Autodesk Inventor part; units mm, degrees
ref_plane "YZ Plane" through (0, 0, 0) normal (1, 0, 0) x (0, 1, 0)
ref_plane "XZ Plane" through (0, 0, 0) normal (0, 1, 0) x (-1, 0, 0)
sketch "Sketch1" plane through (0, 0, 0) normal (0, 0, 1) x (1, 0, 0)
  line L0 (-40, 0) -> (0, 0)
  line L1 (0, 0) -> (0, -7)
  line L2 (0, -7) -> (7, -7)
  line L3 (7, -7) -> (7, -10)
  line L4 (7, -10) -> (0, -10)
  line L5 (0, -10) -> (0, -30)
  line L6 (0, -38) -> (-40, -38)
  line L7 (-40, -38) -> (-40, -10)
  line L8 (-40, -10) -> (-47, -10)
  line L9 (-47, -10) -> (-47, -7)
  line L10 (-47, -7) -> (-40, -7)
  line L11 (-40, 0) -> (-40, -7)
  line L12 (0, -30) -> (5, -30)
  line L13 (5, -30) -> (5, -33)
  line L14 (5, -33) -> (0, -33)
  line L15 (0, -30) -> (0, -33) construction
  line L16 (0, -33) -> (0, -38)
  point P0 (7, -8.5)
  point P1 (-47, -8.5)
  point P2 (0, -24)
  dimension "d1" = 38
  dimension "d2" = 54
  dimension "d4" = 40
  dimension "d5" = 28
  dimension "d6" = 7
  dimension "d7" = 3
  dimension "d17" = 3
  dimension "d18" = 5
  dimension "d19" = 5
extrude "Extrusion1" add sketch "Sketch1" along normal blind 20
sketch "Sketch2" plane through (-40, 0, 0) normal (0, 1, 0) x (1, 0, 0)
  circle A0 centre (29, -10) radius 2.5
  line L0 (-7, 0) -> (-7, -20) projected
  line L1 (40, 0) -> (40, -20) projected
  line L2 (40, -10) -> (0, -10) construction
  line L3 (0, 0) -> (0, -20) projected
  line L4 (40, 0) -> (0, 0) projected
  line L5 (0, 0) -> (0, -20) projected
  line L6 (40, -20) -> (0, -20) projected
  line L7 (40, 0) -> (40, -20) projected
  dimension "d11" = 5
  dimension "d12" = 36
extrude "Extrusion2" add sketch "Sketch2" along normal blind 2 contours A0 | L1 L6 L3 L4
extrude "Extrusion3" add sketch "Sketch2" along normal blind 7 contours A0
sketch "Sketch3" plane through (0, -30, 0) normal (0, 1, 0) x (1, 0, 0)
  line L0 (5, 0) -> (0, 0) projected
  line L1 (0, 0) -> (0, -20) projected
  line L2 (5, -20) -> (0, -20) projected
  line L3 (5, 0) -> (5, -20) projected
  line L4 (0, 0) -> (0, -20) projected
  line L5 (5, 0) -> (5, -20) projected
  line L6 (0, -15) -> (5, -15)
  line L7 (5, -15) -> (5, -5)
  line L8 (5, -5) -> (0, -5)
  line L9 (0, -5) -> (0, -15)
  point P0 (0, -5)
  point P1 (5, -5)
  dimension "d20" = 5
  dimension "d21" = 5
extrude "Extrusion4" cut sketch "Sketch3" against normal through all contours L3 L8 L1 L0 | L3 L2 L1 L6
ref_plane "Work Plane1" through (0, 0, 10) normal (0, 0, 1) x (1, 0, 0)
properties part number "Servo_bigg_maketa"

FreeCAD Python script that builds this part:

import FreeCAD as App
import Part
import Sketcher

V = App.Vector
Q = App.Units.Quantity


def add_polygon(sketch, points):
    """Adds a closed chain of lines whose ends are joined by coincident constraints."""
    first, n = sketch.GeometryCount, len(points)
    for a, b in zip(points, points[1:] + points[:1]):
        sketch.addGeometry(Part.LineSegment(App.Vector(*a, 0), App.Vector(*b, 0)), False)
    for i in range(n):
        sketch.addConstraint(Sketcher.Constraint("Coincident", first + i, 2, first + (i + 1) % n, 1))

doc = App.newDocument("Part")
body = doc.addObject("PartDesign::Body", "Body")

# Sketch on XY plane
sketch1 = body.newObject("Sketcher::SketchObject", "Sketch")
sketch1.AttachmentSupport = (doc.getObject("XY_Plane"), [""])
sketch1.MapMode = "FlatFace"
add_polygon(sketch1, [(0, 0), (-40, 0), (-40, -7), (-47, -7), (-47, -10), (-40, -10), (-40, -38), (0, -38), (0, -33), (5, -33), (5, -30), (0, -30), (0, -10), (7, -10), (7, -7), (0, -7)])  # lines 0-15
sketch1.addConstraint(Sketcher.Constraint("Horizontal", 0))
sketch1.addConstraint(Sketcher.Constraint("Vertical", 1))
sketch1.addConstraint(Sketcher.Constraint("Horizontal", 2))
sketch1.addConstraint(Sketcher.Constraint("Vertical", 3))
sketch1.addConstraint(Sketcher.Constraint("Horizontal", 4))
sketch1.addConstraint(Sketcher.Constraint("Vertical", 5))
sketch1.addConstraint(Sketcher.Constraint("Horizontal", 6))
sketch1.addConstraint(Sketcher.Constraint("Vertical", 7))
sketch1.addConstraint(Sketcher.Constraint("Horizontal", 8))
sketch1.addConstraint(Sketcher.Constraint("Vertical", 9))
sketch1.addConstraint(Sketcher.Constraint("Horizontal", 10))
sketch1.addConstraint(Sketcher.Constraint("Vertical", 11))
sketch1.addConstraint(Sketcher.Constraint("Horizontal", 12))
sketch1.addConstraint(Sketcher.Constraint("Vertical", 13))
sketch1.addConstraint(Sketcher.Constraint("Horizontal", 14))
sketch1.addConstraint(Sketcher.Constraint("Vertical", 15))
sketch1.addConstraint(Sketcher.Constraint("Coincident", 15, 2, -1, 1))
sketch1.addConstraint(Sketcher.Constraint("PointOnObject", 6, 2, -2))
sketch1.addConstraint(Sketcher.Constraint("PointOnObject", 10, 2, -2))
sketch1.addConstraint(Sketcher.Constraint("Horizontal", 4, 2, 11, 2))
sketch1.addConstraint(Sketcher.Constraint("Horizontal", 2, 2, 13, 2))
sketch1.addConstraint(Sketcher.Constraint("Vertical", 1, 2, 4, 2))
sketch1.addConstraint(Sketcher.Constraint("Equal", 4, 12))
sketch1.addConstraint(Sketcher.Constraint("Equal", 14, 1))
sketch1.addConstraint(Sketcher.Constraint("Equal", 10, 7))
sketch1.addConstraint(Sketcher.Constraint("Equal", 3, 9))
sketch1.addConstraint(Sketcher.Constraint("DistanceX", 0, 2, 0, 1, Q("40 mm")))
sketch1.addConstraint(Sketcher.Constraint("DistanceX", 2, 2, 2, 1, Q("7 mm")))
sketch1.addConstraint(Sketcher.Constraint("DistanceX", 8, 1, 8, 2, Q("5 mm")))
sketch1.addConstraint(Sketcher.Constraint("DistanceY", 3, 2, 3, 1, Q("3 mm")))
sketch1.addConstraint(Sketcher.Constraint("DistanceY", 5, 2, 5, 1, Q("28 mm")))
pad1 = body.newObject("PartDesign::Pad", "Pad")
pad1.Profile = sketch1
pad1.Length = 20

# Sketch on XZ plane
sketch2 = body.newObject("Sketcher::SketchObject", "Sketch001")
sketch2.AttachmentSupport = (doc.getObject("XZ_Plane"), [""])
sketch2.MapMode = "FlatFace"
add_polygon(sketch2, [(0, 20), (0, 0), (-40, 0), (-40, 20)])  # lines 0-3
sketch2.addConstraint(Sketcher.Constraint("Vertical", 0))
sketch2.addConstraint(Sketcher.Constraint("Horizontal", 1))
sketch2.addConstraint(Sketcher.Constraint("Vertical", 2))
sketch2.addConstraint(Sketcher.Constraint("Horizontal", 3))
sketch2.addConstraint(Sketcher.Constraint("Coincident", 0, 2, -1, 1))
sketch2.addConstraint(Sketcher.Constraint("DistanceX", 1, 2, 1, 1, Q("40 mm")))
sketch2.addConstraint(Sketcher.Constraint("DistanceY", 0, 2, 0, 1, Q("20 mm")))
pad2 = body.newObject("PartDesign::Pad", "Pad001")
pad2.Profile = sketch2
pad2.Length = 2
pad2.Reversed = True

# Sketch on XZ plane
sketch3 = body.newObject("Sketcher::SketchObject", "Sketch002")
sketch3.AttachmentSupport = (doc.getObject("XZ_Plane"), [""])
sketch3.MapMode = "FlatFace"
sketch3.addGeometry(Part.Circle(V(-11, 10, 0), V(0, 0, 1), 2.5), False)
sketch3.addConstraint(Sketcher.Constraint("Diameter", 0, Q("5 mm")))
sketch3.addConstraint(Sketcher.Constraint("DistanceX", 0, 3, -1, 1, Q("11 mm")))
sketch3.addConstraint(Sketcher.Constraint("DistanceY", -1, 1, 0, 3, Q("10 mm")))
pad3 = body.newObject("PartDesign::Pad", "Pad002")
pad3.Profile = sketch3
pad3.Length = 7
pad3.Reversed = True

# Sketch on XZ plane
sketch4 = body.newObject("Sketcher::SketchObject", "Sketch003")
sketch4.AttachmentSupport = (doc.getObject("XZ_Plane"), [""])
sketch4.MapMode = "FlatFace"
sketch4.AttachmentOffset = App.Placement(V(0, 0, 30), App.Rotation())
add_polygon(sketch4, [(5, 5), (5, 0), (0, 0), (0, 5)])  # lines 0-3
add_polygon(sketch4, [(5, 20), (5, 15), (0, 15), (0, 20)])  # lines 4-7
sketch4.addConstraint(Sketcher.Constraint("Vertical", 0))
sketch4.addConstraint(Sketcher.Constraint("Horizontal", 1))
sketch4.addConstraint(Sketcher.Constraint("Vertical", 2))
sketch4.addConstraint(Sketcher.Constraint("Horizontal", 3))
sketch4.addConstraint(Sketcher.Constraint("Vertical", 4))
sketch4.addConstraint(Sketcher.Constraint("Horizontal", 5))
sketch4.addConstraint(Sketcher.Constraint("Vertical", 6))
sketch4.addConstraint(Sketcher.Constraint("Horizontal", 7))
sketch4.addConstraint(Sketcher.Constraint("Coincident", 1, 2, -1, 1))
sketch4.addConstraint(Sketcher.Constraint("PointOnObject", 5, 2, -2))
sketch4.addConstraint(Sketcher.Constraint("Vertical", 3, 2, 4, 2))
sketch4.addConstraint(Sketcher.Constraint("Equal", 7, 0))
sketch4.addConstraint(Sketcher.Constraint("Equal", 2, 4))
sketch4.addConstraint(Sketcher.Constraint("DistanceX", 1, 2, 1, 1, Q("5 mm")))
sketch4.addConstraint(Sketcher.Constraint("DistanceY", -1, 1, 4, 2, Q("15 mm")))
pocket1 = body.newObject("PartDesign::Pocket", "Pocket")
pocket1.Profile = sketch4
pocket1.Type = "ThroughAll"
pocket1.Reversed = True

doc.recompute()
